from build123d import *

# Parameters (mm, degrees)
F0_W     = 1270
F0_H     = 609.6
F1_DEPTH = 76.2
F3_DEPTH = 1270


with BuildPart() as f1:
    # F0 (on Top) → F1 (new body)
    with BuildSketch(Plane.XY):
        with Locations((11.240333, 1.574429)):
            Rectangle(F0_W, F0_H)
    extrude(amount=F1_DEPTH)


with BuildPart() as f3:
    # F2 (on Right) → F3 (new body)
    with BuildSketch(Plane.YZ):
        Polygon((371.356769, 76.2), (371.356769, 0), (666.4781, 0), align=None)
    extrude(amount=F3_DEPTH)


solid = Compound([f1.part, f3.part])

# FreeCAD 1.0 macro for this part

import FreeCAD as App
import Part
import Sketcher
Q = App.Units.Quantity


def add_polygon(sketch, points):
    """Adds a closed chain of lines whose ends are joined by coincident constraints."""
    first, n = sketch.GeometryCount, len(points)
    for a, b in zip(points, points[1:] + points[:1]):
        sketch.addGeometry(Part.LineSegment(App.Vector(*a, 0), App.Vector(*b, 0)), False)
    for i in range(n):
        sketch.addConstraint(Sketcher.Constraint("Coincident", first + i, 2, first + (i + 1) % n, 1))

doc = App.newDocument("Part")
body = doc.addObject("PartDesign::Body", "Body")

sketch1 = body.newObject("Sketcher::SketchObject", "Sketch")
sketch1.AttachmentSupport = (doc.getObject("XY_Plane"), [""])
sketch1.MapMode = "FlatFace"
add_polygon(sketch1, [(-623.759667, 306.374429), (-623.759667, -303.225571), (646.240333, -303.225571), (646.240333, 306.374429)])
sketch1.addConstraint([
    Sketcher.Constraint("Vertical", 0),
    Sketcher.Constraint("Horizontal", 1),
    Sketcher.Constraint("Vertical", 2),
    Sketcher.Constraint("Horizontal", 3),
    Sketcher.Constraint("DistanceX", 1, 1, 1, 2, Q("50 in")),
    Sketcher.Constraint("DistanceY", 0, 2, 0, 1, Q("24 in")),
    Sketcher.Constraint("DistanceY", 0, 2, -1, 1, Q("303.225571 mm")),
    Sketcher.Constraint("DistanceX", 0, 2, -1, 1, Q("623.759667 mm")),
])
pad1 = body.newObject("PartDesign::Pad", "Pad")
pad1.Profile = sketch1
pad1.Length = Q("3 in")
body2 = doc.addObject("PartDesign::Body", "Body001")

sketch2 = body2.newObject("Sketcher::SketchObject", "Sketch001")
sketch2.AttachmentSupport = (doc.getObject("YZ_Plane001"), [""])
sketch2.MapMode = "FlatFace"
add_polygon(sketch2, [(371.356769, 76.2), (371.356769, 0), (666.4781, 0)])
sketch2.addConstraint([
    Sketcher.Constraint("Vertical", 0),
    Sketcher.Constraint("Horizontal", 1),
    Sketcher.Constraint("PointOnObject", 0, 2, -1),
    Sketcher.Constraint("DistanceY", 0, 2, 0, 1, Q("3 in")),
    Sketcher.Constraint("Distance", 2, Q("12 in")),
    Sketcher.Constraint("DistanceX", -1, 1, 1, 2, Q("666.4781 mm")),
])
pad2 = body2.newObject("PartDesign::Pad", "Pad001")
pad2.Profile = sketch2
pad2.Length = Q("50 in")

doc.recompute()
